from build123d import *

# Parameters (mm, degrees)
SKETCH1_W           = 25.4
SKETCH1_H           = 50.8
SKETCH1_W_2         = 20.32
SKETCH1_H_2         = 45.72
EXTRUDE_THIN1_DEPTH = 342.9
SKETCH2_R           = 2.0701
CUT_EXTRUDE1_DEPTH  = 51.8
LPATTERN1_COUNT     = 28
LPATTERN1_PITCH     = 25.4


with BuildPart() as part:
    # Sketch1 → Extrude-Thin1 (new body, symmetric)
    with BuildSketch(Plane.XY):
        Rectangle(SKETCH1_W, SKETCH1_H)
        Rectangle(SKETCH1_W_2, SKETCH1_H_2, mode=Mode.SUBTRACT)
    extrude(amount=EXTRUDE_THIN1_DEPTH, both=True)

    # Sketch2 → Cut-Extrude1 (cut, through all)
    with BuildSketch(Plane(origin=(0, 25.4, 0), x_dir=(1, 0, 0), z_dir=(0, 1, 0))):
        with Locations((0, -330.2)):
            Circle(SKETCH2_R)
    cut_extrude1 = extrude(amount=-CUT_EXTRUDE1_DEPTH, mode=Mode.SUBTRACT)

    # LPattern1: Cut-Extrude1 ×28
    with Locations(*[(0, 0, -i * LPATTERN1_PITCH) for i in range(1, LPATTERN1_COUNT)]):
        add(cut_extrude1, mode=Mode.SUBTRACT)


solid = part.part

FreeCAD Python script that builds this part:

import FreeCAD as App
import Part
import Sketcher

V = App.Vector
Q = App.Units.Quantity

doc = App.newDocument("Part")
body = doc.addObject("PartDesign::Body", "Body")

sketch1 = body.newObject("Sketcher::SketchObject", "Sketch")
sketch1.AttachmentSupport = (doc.getObject("XY_Plane"), [""])
sketch1.MapMode = "FlatFace"
sketch1.addGeometry([
    Part.LineSegment(V(-12.7, 25.4, 0), V(-12.7, -25.4, 0)),
    Part.LineSegment(V(-12.7, -25.4, 0), V(12.7, -25.4, 0)),
    Part.LineSegment(V(12.7, -25.4, 0), V(12.7, 25.4, 0)),
    Part.LineSegment(V(12.7, 25.4, 0), V(-12.7, 25.4, 0)),
    Part.LineSegment(V(10.16, -22.86, 0), V(-10.16, -22.86, 0)),
    Part.LineSegment(V(-10.16, -22.86, 0), V(-10.16, 22.86, 0)),
    Part.LineSegment(V(-10.16, 22.86, 0), V(10.16, 22.86, 0)),
    Part.LineSegment(V(10.16, 22.86, 0), V(10.16, -22.86, 0)),
], False)
sketch1.addConstraint([
    Sketcher.Constraint("Coincident", 0, 2, 1, 1),
    Sketcher.Constraint("Coincident", 1, 2, 2, 1),
    Sketcher.Constraint("Coincident", 2, 2, 3, 1),
    Sketcher.Constraint("Coincident", 3, 2, 0, 1),
    Sketcher.Constraint("Coincident", 4, 2, 5, 1),
    Sketcher.Constraint("Coincident", 5, 2, 6, 1),
    Sketcher.Constraint("Coincident", 6, 2, 7, 1),
    Sketcher.Constraint("Coincident", 7, 2, 4, 1),
    Sketcher.Constraint("Vertical", 0),
    Sketcher.Constraint("Horizontal", 1),
    Sketcher.Constraint("Vertical", 2),
    Sketcher.Constraint("Horizontal", 3),
    Sketcher.Constraint("Horizontal", 4),
    Sketcher.Constraint("Vertical", 5),
    Sketcher.Constraint("Horizontal", 6),
    Sketcher.Constraint("Vertical", 7),
    Sketcher.Constraint("Symmetric", 0, 2, 2, 2, -1, 1),
    Sketcher.Constraint("Symmetric", 4, 2, 6, 2, -1, 1),
    Sketcher.Constraint("DistanceX", 1, 1, 1, 2, Q("1 in")),
    Sketcher.Constraint("DistanceY", 0, 2, 0, 1, Q("2 in")),
    Sketcher.Constraint("DistanceX", 4, 2, 4, 1, Q("0.8 in")),
    Sketcher.Constraint("DistanceY", 5, 1, 5, 2, Q("1.8 in")),
])
pad1 = body.newObject("PartDesign::Pad", "Pad")
pad1.Profile = sketch1
pad1.Length = Q("27 in")
pad1.Midplane = True

sketch2 = body.newObject("Sketcher::SketchObject", "Sketch001")
sketch2.AttachmentSupport = (doc.getObject("XZ_Plane"), [""])
sketch2.MapMode = "FlatFace"
sketch2.AttachmentOffset = App.Placement(V(0, 0, -1 * 25.4), App.Rotation())
sketch2.addGeometry(Part.Circle(V(0, 330.2, 0), V(0, 0, 1), 2.0701), False)
sketch2.addConstraint([
    Sketcher.Constraint("PointOnObject", 0, 3, -2),
    Sketcher.Constraint("Diameter", 0, Q("0.163 in")),
    Sketcher.Constraint("DistanceY", -1, 1, 0, 3, Q("13 in")),
])
pocket1 = body.newObject("PartDesign::Pocket", "Pocket")
pocket1.Profile = sketch2
pocket1.Type = "ThroughAll"
pocket1.Reversed = True
doc.recompute()

linearpattern = body.newObject("PartDesign::LinearPattern", "LinearPattern")
linearpattern.Originals = [pocket1]
linearpattern.Direction = (doc.getObject("Z_Axis"), [""])
linearpattern.Mode = "offset"
linearpattern.Offset = Q("1 in")
linearpattern.Occurrences = 28
linearpattern.Reversed = True
body.Tip = linearpattern

doc.recompute()
